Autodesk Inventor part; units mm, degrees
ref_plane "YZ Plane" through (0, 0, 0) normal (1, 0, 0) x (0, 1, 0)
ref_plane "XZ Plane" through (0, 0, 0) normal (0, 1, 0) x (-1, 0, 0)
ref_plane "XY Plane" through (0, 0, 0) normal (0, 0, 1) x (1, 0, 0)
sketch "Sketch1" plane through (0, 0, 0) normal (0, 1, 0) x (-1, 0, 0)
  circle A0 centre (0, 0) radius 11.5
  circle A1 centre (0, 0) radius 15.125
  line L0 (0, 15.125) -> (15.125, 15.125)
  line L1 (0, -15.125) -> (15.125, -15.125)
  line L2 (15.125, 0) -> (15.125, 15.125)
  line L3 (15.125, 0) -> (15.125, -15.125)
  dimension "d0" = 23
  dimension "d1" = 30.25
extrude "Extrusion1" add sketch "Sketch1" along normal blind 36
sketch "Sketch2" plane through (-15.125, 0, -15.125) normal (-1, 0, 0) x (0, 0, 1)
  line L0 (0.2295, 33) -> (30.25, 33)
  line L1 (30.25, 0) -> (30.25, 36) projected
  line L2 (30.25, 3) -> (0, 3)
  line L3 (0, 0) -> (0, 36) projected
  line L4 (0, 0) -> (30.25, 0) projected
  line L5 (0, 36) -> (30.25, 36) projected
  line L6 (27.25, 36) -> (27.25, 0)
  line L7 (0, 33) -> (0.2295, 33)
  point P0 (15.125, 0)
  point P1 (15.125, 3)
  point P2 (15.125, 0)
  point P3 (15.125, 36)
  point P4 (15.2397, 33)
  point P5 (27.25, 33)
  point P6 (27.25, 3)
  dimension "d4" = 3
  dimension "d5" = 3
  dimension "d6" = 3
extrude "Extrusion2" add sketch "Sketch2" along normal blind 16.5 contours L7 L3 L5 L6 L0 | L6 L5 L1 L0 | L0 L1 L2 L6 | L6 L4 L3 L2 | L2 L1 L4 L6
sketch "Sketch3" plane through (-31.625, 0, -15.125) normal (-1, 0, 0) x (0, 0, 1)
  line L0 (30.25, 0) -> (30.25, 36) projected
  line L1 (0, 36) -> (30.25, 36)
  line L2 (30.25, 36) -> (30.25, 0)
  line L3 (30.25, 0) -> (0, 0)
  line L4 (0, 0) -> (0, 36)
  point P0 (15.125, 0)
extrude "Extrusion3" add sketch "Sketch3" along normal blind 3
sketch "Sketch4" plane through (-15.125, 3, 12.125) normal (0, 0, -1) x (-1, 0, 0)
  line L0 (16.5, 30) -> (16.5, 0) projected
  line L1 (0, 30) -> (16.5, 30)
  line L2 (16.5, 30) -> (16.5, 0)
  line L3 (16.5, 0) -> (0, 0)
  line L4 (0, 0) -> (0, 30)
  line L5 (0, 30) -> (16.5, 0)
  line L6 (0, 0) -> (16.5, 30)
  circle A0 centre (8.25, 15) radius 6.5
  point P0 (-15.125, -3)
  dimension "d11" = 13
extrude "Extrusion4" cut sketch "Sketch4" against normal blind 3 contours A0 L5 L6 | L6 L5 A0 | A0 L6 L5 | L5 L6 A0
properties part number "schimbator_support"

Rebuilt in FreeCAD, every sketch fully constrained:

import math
import FreeCAD as App
import Part
import Sketcher
from FreeCAD import Vector
Q = App.Units.Quantity


def add_polygon(sketch, points):
    """Adds a closed chain of lines whose ends are joined by coincident constraints."""
    first, n = sketch.GeometryCount, len(points)
    for a, b in zip(points, points[1:] + points[:1]):
        sketch.addGeometry(Part.LineSegment(App.Vector(*a, 0), App.Vector(*b, 0)), False)
    for i in range(n):
        sketch.addConstraint(Sketcher.Constraint("Coincident", first + i, 2, first + (i + 1) % n, 1))

doc = App.newDocument("Part")
body = doc.addObject("PartDesign::Body", "Body")

# Sketch on XZ plane
sketch1 = body.newObject("Sketcher::SketchObject", "Sketch")
sketch1.AttachmentSupport = (doc.getObject("XZ_Plane"), [""])
sketch1.MapMode = "FlatFace"
sketch1.addGeometry([
    Part.ArcOfCircle(Part.Circle(Vector(0, 0, 0), Vector(0, 0, 1), 15), math.radians(-90), math.radians(90)),  # 0
    Part.LineSegment(Vector(0, -15, 0), Vector(-15, -15, 0)),  # 1
    Part.LineSegment(Vector(-15, -15, 0), Vector(-15, 15, 0)),  # 2
    Part.LineSegment(Vector(-15, 15, 0), Vector(0, 15, 0)),  # 3
    Part.Circle(Vector(0, 0, 0), Vector(0, 0, 1), 12),  # 4
], False)
sketch1.addConstraint([
    Sketcher.Constraint("Tangent", 0, 1, 1, 1),
    Sketcher.Constraint("Coincident", 1, 2, 2, 1),
    Sketcher.Constraint("Coincident", 2, 2, 3, 1),
    Sketcher.Constraint("Tangent", 3, 2, 0, 2),
    Sketcher.Constraint("Horizontal", 1),
    Sketcher.Constraint("Vertical", 2),
    Sketcher.Constraint("Horizontal", 3),
    Sketcher.Constraint("Coincident", 0, 3, -1, 1),
    Sketcher.Constraint("Coincident", 4, 3, -1, 1),
    Sketcher.Constraint("Diameter", 4, Q("23 mm")),
    Sketcher.Constraint("Radius", 0, Q("15.125 mm")),
    Sketcher.Constraint("DistanceX", 1, 2, 1, 1, Q("15.125 mm")),
])
pad1 = body.newObject("PartDesign::Pad", "Pad")
pad1.Profile = sketch1
pad1.Length = 36
pad1.Reversed = True

# Sketch on YZ plane
sketch2 = body.newObject("Sketcher::SketchObject", "Sketch001")
sketch2.AttachmentSupport = (doc.getObject("YZ_Plane"), [""])
sketch2.MapMode = "FlatFace"
sketch2.AttachmentOffset = App.Placement(Vector(0, 0, -15.125), App.Rotation())
add_polygon(sketch2, [(33, -15.1), (33, 12.1), (3, 12.1), (3, -15.1), (0, -15.1), (0, 15.1), (36, 15.1), (36, -15.1)])  # lines 0-7
sketch2.addConstraint([
    Sketcher.Constraint("Vertical", 0),
    Sketcher.Constraint("Horizontal", 1),
    Sketcher.Constraint("Vertical", 2),
    Sketcher.Constraint("Horizontal", 3),
    Sketcher.Constraint("Vertical", 4),
    Sketcher.Constraint("Horizontal", 5),
    Sketcher.Constraint("Vertical", 6),
    Sketcher.Constraint("Horizontal", 7),
    Sketcher.Constraint("Symmetric", 3, 2, 4, 2, -1, 1),
    Sketcher.Constraint("Horizontal", 3, 2, 6, 2),
    Sketcher.Constraint("Equal", 3, 7),
    Sketcher.Constraint("DistanceX", 3, 2, 3, 1, Q("3 mm")),
    Sketcher.Constraint("DistanceY", 1, 2, 4, 2, Q("3 mm")),
    Sketcher.Constraint("DistanceX", 1, 2, 1, 1, Q("30 mm")),
    Sketcher.Constraint("DistanceY", 0, 1, 0, 2, Q("27.25 mm")),
])
pad2 = body.newObject("PartDesign::Pad", "Pad001")
pad2.Profile = sketch2
pad2.Length = 16.5
pad2.Reversed = True

# Sketch on YZ plane
sketch3 = body.newObject("Sketcher::SketchObject", "Sketch002")
sketch3.AttachmentSupport = (doc.getObject("YZ_Plane"), [""])
sketch3.MapMode = "FlatFace"
sketch3.AttachmentOffset = App.Placement(Vector(0, 0, -31.625), App.Rotation())
add_polygon(sketch3, [(0, -15), (0, 15), (36, 15), (36, -15)])  # lines 0-3
sketch3.addConstraint([
    Sketcher.Constraint("Vertical", 0),
    Sketcher.Constraint("Horizontal", 1),
    Sketcher.Constraint("Vertical", 2),
    Sketcher.Constraint("Horizontal", 3),
    Sketcher.Constraint("Symmetric", 0, 2, 3, 2, -1, 1),
    Sketcher.Constraint("DistanceX", 1, 1, 1, 2, Q("36 mm")),
    Sketcher.Constraint("DistanceY", 0, 1, 0, 2, Q("30.25 mm")),
])
pad3 = body.newObject("PartDesign::Pad", "Pad002")
pad3.Profile = sketch3
pad3.Length = 3
pad3.Reversed = True

# Sketch on XY plane
sketch4 = body.newObject("Sketcher::SketchObject", "Sketch003")
sketch4.AttachmentSupport = (doc.getObject("XY_Plane"), [""])
sketch4.MapMode = "FlatFace"
sketch4.AttachmentOffset = App.Placement(Vector(0, 0, 12.125), App.Rotation())
sketch4.addGeometry(Part.Circle(Vector(-23, 18, 0), Vector(0, 0, 1), 6), False)
sketch4.addConstraint([
    Sketcher.Constraint("Diameter", 0, Q("13 mm")),
    Sketcher.Constraint("DistanceY", -1, 1, 0, 3, Q("18 mm")),
    Sketcher.Constraint("DistanceX", 0, 3, -1, 1, Q("23.375 mm")),
])
pocket1 = body.newObject("PartDesign::Pocket", "Pocket")
pocket1.Profile = sketch4
pocket1.Length = 3
pocket1.Reversed = True

doc.recompute()
